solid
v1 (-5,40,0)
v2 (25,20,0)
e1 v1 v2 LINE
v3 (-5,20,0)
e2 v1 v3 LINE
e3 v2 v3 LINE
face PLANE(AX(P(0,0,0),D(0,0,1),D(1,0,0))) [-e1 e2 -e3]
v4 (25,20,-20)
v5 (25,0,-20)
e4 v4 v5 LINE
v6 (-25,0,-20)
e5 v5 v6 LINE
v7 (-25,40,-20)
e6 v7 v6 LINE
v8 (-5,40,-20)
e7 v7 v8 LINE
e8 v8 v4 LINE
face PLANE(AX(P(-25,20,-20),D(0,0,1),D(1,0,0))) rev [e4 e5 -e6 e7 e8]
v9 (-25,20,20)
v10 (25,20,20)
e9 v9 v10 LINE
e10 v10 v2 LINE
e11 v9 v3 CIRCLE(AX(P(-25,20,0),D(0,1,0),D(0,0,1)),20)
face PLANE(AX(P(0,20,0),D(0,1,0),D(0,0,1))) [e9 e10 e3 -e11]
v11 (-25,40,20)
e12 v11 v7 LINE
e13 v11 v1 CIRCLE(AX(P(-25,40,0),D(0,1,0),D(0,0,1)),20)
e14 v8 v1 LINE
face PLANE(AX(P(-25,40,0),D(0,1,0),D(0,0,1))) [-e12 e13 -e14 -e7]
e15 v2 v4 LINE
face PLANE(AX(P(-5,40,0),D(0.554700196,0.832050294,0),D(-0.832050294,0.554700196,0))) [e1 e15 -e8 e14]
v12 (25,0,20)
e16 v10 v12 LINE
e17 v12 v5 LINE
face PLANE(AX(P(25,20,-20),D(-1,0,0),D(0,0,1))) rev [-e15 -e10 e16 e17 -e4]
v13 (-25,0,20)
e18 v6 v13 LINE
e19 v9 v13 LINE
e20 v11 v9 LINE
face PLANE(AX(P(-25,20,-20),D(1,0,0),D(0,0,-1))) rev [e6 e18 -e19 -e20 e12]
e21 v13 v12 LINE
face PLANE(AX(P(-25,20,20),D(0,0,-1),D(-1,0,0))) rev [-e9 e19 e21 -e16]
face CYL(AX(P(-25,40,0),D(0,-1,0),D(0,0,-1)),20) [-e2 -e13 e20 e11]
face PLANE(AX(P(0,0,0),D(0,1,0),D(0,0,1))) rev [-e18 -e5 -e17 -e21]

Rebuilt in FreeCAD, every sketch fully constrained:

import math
import FreeCAD as App
import Part
import Sketcher

V = App.Vector

doc = App.newDocument("Part")
body = doc.addObject("PartDesign::Body", "Body")

# Sketch on XZ plane
sketch1 = body.newObject("Sketcher::SketchObject", "Sketch")
sketch1.AttachmentSupport = (doc.getObject("XZ_Plane"), [""])
sketch1.MapMode = "FlatFace"
sketch1.addGeometry([
    Part.LineSegment(V(-25, -20, 0), V(-25, 20, 0)),
    Part.LineSegment(V(-25, 20, 0), V(25, 20, 0)),
    Part.LineSegment(V(25, 20, 0), V(25, -20, 0)),
    Part.LineSegment(V(25, -20, 0), V(-25, -20, 0)),
], False)
sketch1.addConstraint([
    Sketcher.Constraint("Coincident", 0, 2, 1, 1),
    Sketcher.Constraint("Coincident", 1, 2, 2, 1),
    Sketcher.Constraint("Coincident", 2, 2, 3, 1),
    Sketcher.Constraint("Coincident", 3, 2, 0, 1),
    Sketcher.Constraint("Vertical", 0),
    Sketcher.Constraint("Horizontal", 1),
    Sketcher.Constraint("Vertical", 2),
    Sketcher.Constraint("Horizontal", 3),
    Sketcher.Constraint("Symmetric", 0, 2, 2, 2, -1, 1),
    Sketcher.Constraint("DistanceX", 1, 1, 1, 2, 50.0),
    Sketcher.Constraint("DistanceY", 0, 1, 0, 2, 40.0),
])
pad1 = body.newObject("PartDesign::Pad", "Pad")
pad1.Profile = sketch1
pad1.Length = 20
pad1.Reversed = True

# Sketch on XZ plane
sketch2 = body.newObject("Sketcher::SketchObject", "Sketch001")
sketch2.AttachmentSupport = (doc.getObject("XZ_Plane"), [""])
sketch2.MapMode = "FlatFace"
sketch2.AttachmentOffset = App.Placement(V(0, 0, -20), App.Rotation())
sketch2.addGeometry([
    Part.LineSegment(V(-5, -20, 0), V(-25, -20, 0)),
    Part.LineSegment(V(-25, -20, 0), V(-25, 20, 0)),
    Part.ArcOfCircle(Part.Circle(V(-25, 0, 0), V(0, 0, 1), 20), math.radians(0), math.radians(90)),
    Part.LineSegment(V(-5, 0, 0), V(-5, -20, 0)),
], False)
sketch2.addConstraint([
    Sketcher.Constraint("Coincident", 0, 2, 1, 1),
    Sketcher.Constraint("Coincident", 1, 2, 2, 2),
    Sketcher.Constraint("Tangent", 2, 1, 3, 1),
    Sketcher.Constraint("Coincident", 3, 2, 0, 1),
    Sketcher.Constraint("Horizontal", 0),
    Sketcher.Constraint("Vertical", 1),
    Sketcher.Constraint("Vertical", 3),
    Sketcher.Constraint("PointOnObject", 2, 3, -1),
    Sketcher.Constraint("Vertical", 2, 3, 0, 2),
    Sketcher.Constraint("Equal", 0, 3),
    Sketcher.Constraint("Radius", 2, 20.0),
    Sketcher.Constraint("DistanceX", 2, 3, -1, 1, 25.0),
])
pad2 = body.newObject("PartDesign::Pad", "Pad001")
pad2.Profile = sketch2
pad2.Length = 20
pad2.Reversed = True

# Sketch on XY plane
sketch3 = body.newObject("Sketcher::SketchObject", "Sketch002")
sketch3.AttachmentSupport = (doc.getObject("XY_Plane"), [""])
sketch3.MapMode = "FlatFace"
sketch3.AttachmentOffset = App.Placement(V(0, 0, -20), App.Rotation())
sketch3.addGeometry([
    Part.LineSegment(V(-5, 40, 0), V(25, 20, 0)),
    Part.LineSegment(V(25, 20, 0), V(-5, 20, 0)),
    Part.LineSegment(V(-5, 20, 0), V(-5, 40, 0)),
], False)
sketch3.addConstraint([
    Sketcher.Constraint("Coincident", 0, 2, 1, 1),
    Sketcher.Constraint("Coincident", 1, 2, 2, 1),
    Sketcher.Constraint("Coincident", 2, 2, 0, 1),
    Sketcher.Constraint("Horizontal", 1),
    Sketcher.Constraint("Vertical", 2),
    Sketcher.Constraint("DistanceX", 1, 2, 1, 1, 30.0),
    Sketcher.Constraint("DistanceY", 2, 1, 2, 2, 20.0),
    Sketcher.Constraint("DistanceX", -1, 1, 0, 2, 25.0),
    Sketcher.Constraint("DistanceY", -1, 1, 0, 2, 20.0),
])
pad3 = body.newObject("PartDesign::Pad", "Pad002")
pad3.Profile = sketch3
pad3.Length = 20

doc.recompute()
